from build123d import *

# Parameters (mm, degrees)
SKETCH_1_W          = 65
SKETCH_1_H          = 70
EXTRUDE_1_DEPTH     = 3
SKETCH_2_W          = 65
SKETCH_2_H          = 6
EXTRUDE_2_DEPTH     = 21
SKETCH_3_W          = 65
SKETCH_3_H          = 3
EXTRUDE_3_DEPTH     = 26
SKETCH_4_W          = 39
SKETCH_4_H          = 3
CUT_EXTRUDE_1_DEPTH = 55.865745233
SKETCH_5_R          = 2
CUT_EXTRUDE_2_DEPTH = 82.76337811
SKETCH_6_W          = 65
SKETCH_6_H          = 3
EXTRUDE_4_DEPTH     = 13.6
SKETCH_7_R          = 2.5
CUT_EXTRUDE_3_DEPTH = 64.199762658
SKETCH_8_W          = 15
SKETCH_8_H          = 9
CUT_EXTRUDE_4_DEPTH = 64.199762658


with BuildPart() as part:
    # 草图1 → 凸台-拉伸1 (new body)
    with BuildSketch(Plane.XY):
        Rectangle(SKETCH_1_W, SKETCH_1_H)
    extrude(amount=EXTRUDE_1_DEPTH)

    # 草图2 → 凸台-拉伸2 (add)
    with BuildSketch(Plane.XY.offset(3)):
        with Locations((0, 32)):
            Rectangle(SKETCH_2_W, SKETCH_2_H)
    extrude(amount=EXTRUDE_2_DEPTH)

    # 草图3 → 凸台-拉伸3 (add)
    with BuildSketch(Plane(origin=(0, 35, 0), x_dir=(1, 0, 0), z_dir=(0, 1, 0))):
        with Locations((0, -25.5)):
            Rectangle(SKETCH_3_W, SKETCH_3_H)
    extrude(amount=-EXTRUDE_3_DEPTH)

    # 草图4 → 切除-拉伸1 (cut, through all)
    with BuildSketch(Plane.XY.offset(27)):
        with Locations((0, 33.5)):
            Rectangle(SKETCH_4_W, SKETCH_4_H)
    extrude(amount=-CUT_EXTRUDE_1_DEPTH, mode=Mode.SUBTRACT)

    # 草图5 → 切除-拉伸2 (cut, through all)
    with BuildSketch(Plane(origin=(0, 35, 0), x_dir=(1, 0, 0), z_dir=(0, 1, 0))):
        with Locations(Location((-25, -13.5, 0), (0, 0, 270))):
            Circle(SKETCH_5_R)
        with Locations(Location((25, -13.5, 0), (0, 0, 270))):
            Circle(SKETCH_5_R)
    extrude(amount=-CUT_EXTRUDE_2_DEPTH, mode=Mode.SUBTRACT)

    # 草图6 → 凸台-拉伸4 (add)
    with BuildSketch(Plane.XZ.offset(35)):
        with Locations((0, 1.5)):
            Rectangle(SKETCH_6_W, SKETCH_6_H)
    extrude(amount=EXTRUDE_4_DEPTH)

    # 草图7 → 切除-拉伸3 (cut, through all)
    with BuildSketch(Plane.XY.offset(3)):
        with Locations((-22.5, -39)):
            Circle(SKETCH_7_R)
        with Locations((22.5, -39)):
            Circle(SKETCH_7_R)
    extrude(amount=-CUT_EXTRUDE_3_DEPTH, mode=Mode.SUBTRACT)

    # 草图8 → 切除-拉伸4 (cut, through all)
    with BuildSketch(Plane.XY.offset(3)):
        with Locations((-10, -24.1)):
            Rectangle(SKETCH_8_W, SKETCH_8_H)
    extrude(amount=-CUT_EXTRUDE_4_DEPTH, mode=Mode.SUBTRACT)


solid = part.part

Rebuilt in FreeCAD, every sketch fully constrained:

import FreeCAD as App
import Part
import Sketcher
Q = App.Units.Quantity


def add_polygon(sketch, points):
    """Adds a closed chain of lines whose ends are joined by coincident constraints."""
    first, n = sketch.GeometryCount, len(points)
    for a, b in zip(points, points[1:] + points[:1]):
        sketch.addGeometry(Part.LineSegment(App.Vector(*a, 0), App.Vector(*b, 0)), False)
    for i in range(n):
        sketch.addConstraint(Sketcher.Constraint("Coincident", first + i, 2, first + (i + 1) % n, 1))

doc = App.newDocument("Part")
body = doc.addObject("PartDesign::Body", "Body")

# Sketch on XY plane
sketch1 = body.newObject("Sketcher::SketchObject", "Sketch")
sketch1.AttachmentSupport = (doc.getObject("XY_Plane"), [""])
sketch1.MapMode = "FlatFace"
add_polygon(sketch1, [(-32, 35), (-32, -35), (32, -35), (32, 35)])  # lines 0-3
sketch1.addConstraint(Sketcher.Constraint("Vertical", 0))
sketch1.addConstraint(Sketcher.Constraint("Horizontal", 1))
sketch1.addConstraint(Sketcher.Constraint("Vertical", 2))
sketch1.addConstraint(Sketcher.Constraint("Horizontal", 3))
sketch1.addConstraint(Sketcher.Constraint("Symmetric", 0, 2, 2, 2, -1, 1))
sketch1.addConstraint(Sketcher.Constraint("DistanceX", 1, 1, 1, 2, Q("65 mm")))
sketch1.addConstraint(Sketcher.Constraint("DistanceY", 0, 2, 0, 1, Q("70 mm")))
pad1 = body.newObject("PartDesign::Pad", "Pad")
pad1.Profile = sketch1
pad1.Length = 3

# Sketch on XY plane
sketch2 = body.newObject("Sketcher::SketchObject", "Sketch001")
sketch2.AttachmentSupport = (doc.getObject("XY_Plane"), [""])
sketch2.MapMode = "FlatFace"
sketch2.AttachmentOffset = App.Placement(App.Vector(0, 0, 3), App.Rotation())
add_polygon(sketch2, [(-32, 35), (-32, 29), (32, 29), (32, 35)])  # lines 0-3
sketch2.addConstraint(Sketcher.Constraint("Vertical", 0))
sketch2.addConstraint(Sketcher.Constraint("Horizontal", 1))
sketch2.addConstraint(Sketcher.Constraint("Vertical", 2))
sketch2.addConstraint(Sketcher.Constraint("Horizontal", 3))
sketch2.addConstraint(Sketcher.Constraint("DistanceX", 1, 1, 1, 2, Q("65 mm")))
sketch2.addConstraint(Sketcher.Constraint("DistanceY", 0, 2, 0, 1, Q("6 mm")))
sketch2.addConstraint(Sketcher.Constraint("DistanceY", -1, 1, 0, 2, Q("29 mm")))
sketch2.addConstraint(Sketcher.Constraint("DistanceX", 0, 2, -1, 1, Q("32.5 mm")))
pad2 = body.newObject("PartDesign::Pad", "Pad001")
pad2.Profile = sketch2
pad2.Length = 21

# Sketch on XZ plane
sketch3 = body.newObject("Sketcher::SketchObject", "Sketch002")
sketch3.AttachmentSupport = (doc.getObject("XZ_Plane"), [""])
sketch3.MapMode = "FlatFace"
sketch3.AttachmentOffset = App.Placement(App.Vector(0, 0, -35), App.Rotation())
add_polygon(sketch3, [(-32.5, 24), (-32.5, 27), (32.5, 27), (32.5, 24)])  # lines 0-3
sketch3.addConstraint(Sketcher.Constraint("Vertical", 0))
sketch3.addConstraint(Sketcher.Constraint("Horizontal", 1))
sketch3.addConstraint(Sketcher.Constraint("Vertical", 2))
sketch3.addConstraint(Sketcher.Constraint("Horizontal", 3))
sketch3.addConstraint(Sketcher.Constraint("DistanceX", 1, 1, 1, 2, Q("65 mm")))
sketch3.addConstraint(Sketcher.Constraint("DistanceY", 0, 1, 0, 2, Q("3 mm")))
sketch3.addConstraint(Sketcher.Constraint("DistanceY", -1, 1, 0, 2, Q("27 mm")))
sketch3.addConstraint(Sketcher.Constraint("DistanceX", 0, 2, -1, 1, Q("32.5 mm")))
pad3 = body.newObject("PartDesign::Pad", "Pad002")
pad3.Profile = sketch3
pad3.Length = 26

# Sketch on XY plane
sketch4 = body.newObject("Sketcher::SketchObject", "Sketch003")
sketch4.AttachmentSupport = (doc.getObject("XY_Plane"), [""])
sketch4.MapMode = "FlatFace"
sketch4.AttachmentOffset = App.Placement(App.Vector(0, 0, 27), App.Rotation())
add_polygon(sketch4, [(-19.5, 35), (-19.5, 32), (19.5, 32), (19.5, 35)])  # lines 0-3
sketch4.addConstraint(Sketcher.Constraint("Vertical", 0))
sketch4.addConstraint(Sketcher.Constraint("Horizontal", 1))
sketch4.addConstraint(Sketcher.Constraint("Vertical", 2))
sketch4.addConstraint(Sketcher.Constraint("Horizontal", 3))
sketch4.addConstraint(Sketcher.Constraint("DistanceX", 1, 1, 1, 2, Q("39 mm")))
sketch4.addConstraint(Sketcher.Constraint("DistanceY", 0, 2, 0, 1, Q("3 mm")))
sketch4.addConstraint(Sketcher.Constraint("DistanceY", -1, 1, 0, 2, Q("32 mm")))
sketch4.addConstraint(Sketcher.Constraint("DistanceX", 0, 2, -1, 1, Q("19.5 mm")))
pocket1 = body.newObject("PartDesign::Pocket", "Pocket")
pocket1.Profile = sketch4
pocket1.Type = "ThroughAll"

# Sketch on XZ plane
sketch5 = body.newObject("Sketcher::SketchObject", "Sketch004")
sketch5.AttachmentSupport = (doc.getObject("XZ_Plane"), [""])
sketch5.MapMode = "FlatFace"
sketch5.AttachmentOffset = App.Placement(App.Vector(0, 0, -35), App.Rotation())
sketch5.addGeometry(Part.Circle(App.Vector(-25, 13.5, 0), App.Vector(0, 0, 1), 2), False)
sketch5.addGeometry(Part.Circle(App.Vector(25, 13.5, 0), App.Vector(0, 0, 1), 2), False)
sketch5.addConstraint(Sketcher.Constraint("Equal", 0, 1))
sketch5.addConstraint(Sketcher.Constraint("Symmetric", 0, 3, 1, 3, -2))
sketch5.addConstraint(Sketcher.Constraint("Diameter", 0, Q("4 mm")))
sketch5.addConstraint(Sketcher.Constraint("DistanceX", 0, 3, -1, 1, Q("25 mm")))
sketch5.addConstraint(Sketcher.Constraint("DistanceY", -1, 1, 0, 3, Q("13.5 mm")))
pocket2 = body.newObject("PartDesign::Pocket", "Pocket001")
pocket2.Profile = sketch5
pocket2.Type = "ThroughAll"
pocket2.Reversed = True

# Sketch on XZ plane
sketch6 = body.newObject("Sketcher::SketchObject", "Sketch005")
sketch6.AttachmentSupport = (doc.getObject("XZ_Plane"), [""])
sketch6.MapMode = "FlatFace"
sketch6.AttachmentOffset = App.Placement(App.Vector(0, 0, 35), App.Rotation())
add_polygon(sketch6, [(-32.5, 3), (-32.5, 0), (32.5, 0), (32.5, 3)])  # lines 0-3
sketch6.addConstraint(Sketcher.Constraint("Vertical", 0))
sketch6.addConstraint(Sketcher.Constraint("Horizontal", 1))
sketch6.addConstraint(Sketcher.Constraint("Vertical", 2))
sketch6.addConstraint(Sketcher.Constraint("Horizontal", 3))
sketch6.addConstraint(Sketcher.Constraint("Symmetric", 0, 2, 1, 2, -1, 1))
sketch6.addConstraint(Sketcher.Constraint("DistanceX", 1, 1, 1, 2, Q("65 mm")))
sketch6.addConstraint(Sketcher.Constraint("DistanceY", 0, 2, 0, 1, Q("3 mm")))
pad4 = body.newObject("PartDesign::Pad", "Pad003")
pad4.Profile = sketch6
pad4.Length = 13.6

# Sketch on XY plane
sketch7 = body.newObject("Sketcher::SketchObject", "Sketch006")
sketch7.AttachmentSupport = (doc.getObject("XY_Plane"), [""])
sketch7.MapMode = "FlatFace"
sketch7.AttachmentOffset = App.Placement(App.Vector(0, 0, 3), App.Rotation())
sketch7.addGeometry(Part.Circle(App.Vector(-22.5, -39, 0), App.Vector(0, 0, 1), 2.5), False)
sketch7.addGeometry(Part.Circle(App.Vector(22.5, -39, 0), App.Vector(0, 0, 1), 2.5), False)
sketch7.addConstraint(Sketcher.Constraint("Equal", 0, 1))
sketch7.addConstraint(Sketcher.Constraint("Symmetric", 0, 3, 1, 3, -2))
sketch7.addConstraint(Sketcher.Constraint("Diameter", 0, Q("5 mm")))
sketch7.addConstraint(Sketcher.Constraint("DistanceY", 0, 3, -1, 1, Q("39 mm")))
sketch7.addConstraint(Sketcher.Constraint("DistanceX", 0, 3, 1, 3, Q("45 mm")))
pocket3 = body.newObject("PartDesign::Pocket", "Pocket002")
pocket3.Profile = sketch7
pocket3.Type = "ThroughAll"

# Sketch on XY plane
sketch8 = body.newObject("Sketcher::SketchObject", "Sketch007")
sketch8.AttachmentSupport = (doc.getObject("XY_Plane"), [""])
sketch8.MapMode = "FlatFace"
sketch8.AttachmentOffset = App.Placement(App.Vector(0, 0, 3), App.Rotation())
add_polygon(sketch8, [(-18, -20), (-18, -29), (-2, -29), (-2, -20)])  # lines 0-3
sketch8.addConstraint(Sketcher.Constraint("Vertical", 0))
sketch8.addConstraint(Sketcher.Constraint("Horizontal", 1))
sketch8.addConstraint(Sketcher.Constraint("Vertical", 2))
sketch8.addConstraint(Sketcher.Constraint("Horizontal", 3))
sketch8.addConstraint(Sketcher.Constraint("DistanceX", 1, 1, 1, 2, Q("15 mm")))
sketch8.addConstraint(Sketcher.Constraint("DistanceY", 0, 2, 0, 1, Q("9 mm")))
sketch8.addConstraint(Sketcher.Constraint("DistanceX", 0, 2, -1, 1, Q("17.5 mm")))
sketch8.addConstraint(Sketcher.Constraint("DistanceY", 0, 2, -1, 1, Q("28.6 mm")))
pocket4 = body.newObject("PartDesign::Pocket", "Pocket003")
pocket4.Profile = sketch8
pocket4.Type = "ThroughAll"

doc.recompute()
